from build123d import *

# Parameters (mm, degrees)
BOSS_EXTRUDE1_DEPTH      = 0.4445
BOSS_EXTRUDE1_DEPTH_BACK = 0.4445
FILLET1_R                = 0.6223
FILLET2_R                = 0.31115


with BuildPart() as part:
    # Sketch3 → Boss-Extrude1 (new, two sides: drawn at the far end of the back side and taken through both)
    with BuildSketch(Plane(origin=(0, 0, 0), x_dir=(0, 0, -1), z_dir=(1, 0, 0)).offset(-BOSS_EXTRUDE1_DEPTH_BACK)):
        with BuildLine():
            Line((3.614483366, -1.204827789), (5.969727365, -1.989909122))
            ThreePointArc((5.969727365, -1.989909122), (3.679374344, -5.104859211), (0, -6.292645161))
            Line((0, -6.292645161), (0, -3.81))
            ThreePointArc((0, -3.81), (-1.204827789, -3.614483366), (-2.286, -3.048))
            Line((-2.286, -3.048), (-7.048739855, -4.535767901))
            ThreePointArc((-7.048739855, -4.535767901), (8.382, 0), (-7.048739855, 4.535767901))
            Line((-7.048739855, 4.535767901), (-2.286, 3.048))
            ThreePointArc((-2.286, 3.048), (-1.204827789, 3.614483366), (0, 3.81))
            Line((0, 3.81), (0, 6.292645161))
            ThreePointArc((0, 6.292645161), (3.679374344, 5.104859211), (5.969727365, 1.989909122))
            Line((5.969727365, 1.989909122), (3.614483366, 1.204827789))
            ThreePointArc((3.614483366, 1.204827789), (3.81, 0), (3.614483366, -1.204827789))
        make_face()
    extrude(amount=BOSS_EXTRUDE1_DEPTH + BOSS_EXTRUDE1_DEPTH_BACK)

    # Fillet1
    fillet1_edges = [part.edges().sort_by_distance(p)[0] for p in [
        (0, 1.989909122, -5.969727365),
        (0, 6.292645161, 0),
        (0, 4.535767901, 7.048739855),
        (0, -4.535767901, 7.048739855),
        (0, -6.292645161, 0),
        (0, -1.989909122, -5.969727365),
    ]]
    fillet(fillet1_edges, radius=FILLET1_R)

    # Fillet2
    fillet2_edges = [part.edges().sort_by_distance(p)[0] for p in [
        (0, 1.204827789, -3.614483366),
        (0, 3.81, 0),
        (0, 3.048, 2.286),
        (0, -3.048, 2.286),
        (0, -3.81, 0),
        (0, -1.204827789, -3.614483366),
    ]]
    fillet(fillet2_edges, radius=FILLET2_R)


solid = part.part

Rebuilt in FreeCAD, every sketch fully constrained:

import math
import FreeCAD as App
import Part
import Sketcher
from FreeCAD import Vector
Q = App.Units.Quantity


def edges_at(feature, points):
    """Names of the edges that pass closest to the given points."""
    edges = feature.Shape.Edges
    near = lambda p: min(range(len(edges)), key=lambda i: edges[i].distToShape(Part.Vertex(*p))[0])
    return sorted({f"Edge{near(p) + 1}" for p in points})

doc = App.newDocument("Part")
body = doc.addObject("PartDesign::Body", "Body")

# Sketch on YZ plane
sketch1 = doc.addObject("Sketcher::SketchObject", "Sketch")
body.addObject(sketch1)
sketch1.AttachmentSupport = (doc.YZ_Plane, [""])
sketch1.MapMode = "FlatFace"
sketch1.addGeometry(Part.LineSegment(Vector(-1.2, -3.6, 0), Vector(-2, -6, 0)), False)
sketch1.addGeometry(Part.ArcOfCircle(Part.Circle(Vector(0, 0, 0), Vector(0, 0, 1), 6.3), math.radians(180), math.radians(252)), False)
sketch1.addGeometry(Part.LineSegment(Vector(-6.3, 0, 0), Vector(-3.8, 0, 0)), False)
sketch1.addGeometry(Part.ArcOfCircle(Part.Circle(Vector(0, 0, 0), Vector(0, 0, 1), 3.8), math.radians(143), math.radians(180)), False)
sketch1.addGeometry(Part.LineSegment(Vector(-3, 2.3, 0), Vector(-4.5, 7, 0)), False)
sketch1.addGeometry(Part.ArcOfCircle(Part.Circle(Vector(0, 0, 0), Vector(0, 0, 1), 8.4), math.radians(123), math.radians(417)), False)
sketch1.addGeometry(Part.LineSegment(Vector(4.5, 7, 0), Vector(3, 2.3, 0)), False)
sketch1.addGeometry(Part.ArcOfCircle(Part.Circle(Vector(0, 0, 0), Vector(0, 0, 1), 3.8), math.radians(0), math.radians(37)), False)
sketch1.addGeometry(Part.LineSegment(Vector(3.8, 0, 0), Vector(6.3, 0, 0)), False)
sketch1.addGeometry(Part.ArcOfCircle(Part.Circle(Vector(0, 0, 0), Vector(0, 0, 1), 6.3), math.radians(-72), math.radians(0)), False)
sketch1.addGeometry(Part.LineSegment(Vector(2, -6, 0), Vector(1.2, -3.6, 0)), False)
sketch1.addGeometry(Part.ArcOfCircle(Part.Circle(Vector(0, 0, 0), Vector(0, 0, 1), 3.8), math.radians(-108), math.radians(-72)), False)
sketch1.addConstraint(Sketcher.Constraint("Coincident", 0, 2, 1, 2))
sketch1.addConstraint(Sketcher.Constraint("Coincident", 1, 1, 2, 1))
sketch1.addConstraint(Sketcher.Constraint("Coincident", 2, 2, 3, 2))
sketch1.addConstraint(Sketcher.Constraint("Coincident", 3, 1, 4, 1))
sketch1.addConstraint(Sketcher.Constraint("Coincident", 4, 2, 5, 1))
sketch1.addConstraint(Sketcher.Constraint("Coincident", 5, 2, 6, 1))
sketch1.addConstraint(Sketcher.Constraint("Coincident", 6, 2, 7, 2))
sketch1.addConstraint(Sketcher.Constraint("Coincident", 7, 1, 8, 1))
sketch1.addConstraint(Sketcher.Constraint("Coincident", 8, 2, 9, 2))
sketch1.addConstraint(Sketcher.Constraint("Coincident", 9, 1, 10, 1))
sketch1.addConstraint(Sketcher.Constraint("Coincident", 10, 2, 11, 2))
sketch1.addConstraint(Sketcher.Constraint("Coincident", 11, 1, 0, 1))
sketch1.addConstraint(Sketcher.Constraint("Horizontal", 2))
sketch1.addConstraint(Sketcher.Constraint("Horizontal", 8))
sketch1.addConstraint(Sketcher.Constraint("Coincident", 1, 3, -1, 1))
sketch1.addConstraint(Sketcher.Constraint("Coincident", 3, 3, -1, 1))
sketch1.addConstraint(Sketcher.Constraint("Coincident", 5, 3, -1, 1))
sketch1.addConstraint(Sketcher.Constraint("Coincident", 7, 3, -1, 1))
sketch1.addConstraint(Sketcher.Constraint("Coincident", 9, 3, -1, 1))
sketch1.addConstraint(Sketcher.Constraint("Coincident", 11, 3, -1, 1))
sketch1.addConstraint(Sketcher.Constraint("Equal", 3, 7))
sketch1.addConstraint(Sketcher.Constraint("Equal", 1, 9))
sketch1.addConstraint(Sketcher.Constraint("Equal", 7, 11))
sketch1.addConstraint(Sketcher.Constraint("PointOnObject", 1, 1, -1))
sketch1.addConstraint(Sketcher.Constraint("PointOnObject", 7, 1, -1))
sketch1.addConstraint(Sketcher.Constraint("Horizontal", 4, 2, 5, 2))
sketch1.addConstraint(Sketcher.Constraint("Horizontal", 3, 1, 6, 2))
sketch1.addConstraint(Sketcher.Constraint("Horizontal", 0, 2, 9, 1))
sketch1.addConstraint(Sketcher.Constraint("Horizontal", 10, 2, 11, 1))
sketch1.addConstraint(Sketcher.Constraint("Radius", 3, Q("0.15 in")))
sketch1.addConstraint(Sketcher.Constraint("Radius", 5, Q("0.33 in")))
sketch1.addConstraint(Sketcher.Constraint("DistanceX", 3, 1, -1, 1, Q("0.12 in")))
sketch1.addConstraint(Sketcher.Constraint("Radius", 1, Q("6.292645 mm")))
sketch1.addConstraint(Sketcher.Constraint("DistanceX", 0, 2, -1, 1, Q("1.989909 mm")))
sketch1.addConstraint(Sketcher.Constraint("DistanceY", -1, 1, 4, 2, Q("7.04874 mm")))
sketch1.addConstraint(Sketcher.Constraint("DistanceX", 10, 2, 9, 1, Q("0.785081 mm")))
pad1 = doc.addObject("PartDesign::Pad", "Pad")
body.addObject(pad1)
pad1.Profile = sketch1
pad1.Type = "TwoLengths"
pad1.Length = Q("0.0175 in")
pad1.Length2 = Q("0.0175 in")
doc.recompute()

fillet = doc.addObject("PartDesign::Fillet", "Fillet")
body.addObject(fillet)
fillet.Base = (pad1, edges_at(pad1, [
    (0, 1.99, -5.97),
    (0, 6.293, 0),
    (0, 4.536, 7.049),
    (0, -4.536, 7.049),
    (0, -6.293, 0),
    (0, -1.99, -5.97),
]))
fillet.Radius = Q("0.0245 in")
doc.recompute()

fillet2 = doc.addObject("PartDesign::Fillet", "Fillet001")
body.addObject(fillet2)
fillet2.Base = (fillet, edges_at(fillet, [
    (0, 1.205, -3.614),
    (0, 3.81, 0),
    (0, 3.048, 2.286),
    (0, -3.048, 2.286),
    (0, -3.81, 0),
    (0, -1.205, -3.614),
]))
fillet2.Radius = 0.31115

doc.recompute()
